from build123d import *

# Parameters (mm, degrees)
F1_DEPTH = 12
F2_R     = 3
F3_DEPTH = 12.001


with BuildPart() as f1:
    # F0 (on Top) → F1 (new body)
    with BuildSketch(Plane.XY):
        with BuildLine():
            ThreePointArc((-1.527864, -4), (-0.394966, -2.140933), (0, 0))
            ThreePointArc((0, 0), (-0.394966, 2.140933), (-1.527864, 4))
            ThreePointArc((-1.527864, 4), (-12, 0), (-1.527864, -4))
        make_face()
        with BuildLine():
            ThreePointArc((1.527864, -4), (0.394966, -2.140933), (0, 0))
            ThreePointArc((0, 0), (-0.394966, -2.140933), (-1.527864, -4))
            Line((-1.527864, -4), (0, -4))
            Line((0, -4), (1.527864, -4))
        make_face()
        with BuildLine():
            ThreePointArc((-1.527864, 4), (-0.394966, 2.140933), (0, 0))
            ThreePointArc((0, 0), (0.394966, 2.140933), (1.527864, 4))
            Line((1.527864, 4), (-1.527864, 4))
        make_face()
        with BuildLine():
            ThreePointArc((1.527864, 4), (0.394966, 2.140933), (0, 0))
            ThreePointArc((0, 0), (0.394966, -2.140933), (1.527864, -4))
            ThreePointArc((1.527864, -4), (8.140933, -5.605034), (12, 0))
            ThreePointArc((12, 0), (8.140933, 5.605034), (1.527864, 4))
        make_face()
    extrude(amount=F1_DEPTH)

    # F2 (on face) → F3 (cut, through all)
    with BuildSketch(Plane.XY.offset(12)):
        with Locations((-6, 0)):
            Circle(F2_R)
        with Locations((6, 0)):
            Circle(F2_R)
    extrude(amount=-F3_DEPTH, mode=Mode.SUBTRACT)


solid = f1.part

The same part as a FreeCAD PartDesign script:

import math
import FreeCAD as App
import Part
import Sketcher
Q = App.Units.Quantity

doc = App.newDocument("Part")
body = doc.addObject("PartDesign::Body", "Body")

# Sketch on XY plane
sketch1 = body.newObject("Sketcher::SketchObject", "Sketch")
sketch1.AttachmentSupport = (doc.getObject("XY_Plane"), [""])
sketch1.MapMode = "FlatFace"
sketch1.addGeometry(Part.ArcOfCircle(Part.Circle(App.Vector(-6, 0, 0), App.Vector(0, 0, 1), 6), math.radians(42), math.radians(318)), False)
sketch1.addGeometry(Part.LineSegment(App.Vector(-1.5, -4, 0), App.Vector(1.5, -4, 0)), False)
sketch1.addGeometry(Part.ArcOfCircle(Part.Circle(App.Vector(6, 0, 0), App.Vector(0, 0, 1), 6), math.radians(-138), math.radians(0)), False)
sketch1.addGeometry(Part.ArcOfCircle(Part.Circle(App.Vector(6, 0, 0), App.Vector(0, 0, 1), 6), math.radians(0), math.radians(138)), False)
sketch1.addGeometry(Part.LineSegment(App.Vector(1.5, 4, 0), App.Vector(-1.5, 4, 0)), False)
sketch1.addConstraint(Sketcher.Constraint("Coincident", 0, 2, 1, 1))
sketch1.addConstraint(Sketcher.Constraint("Coincident", 1, 2, 2, 1))
sketch1.addConstraint(Sketcher.Constraint("Tangent", 2, 2, 3, 1))
sketch1.addConstraint(Sketcher.Constraint("Coincident", 3, 2, 4, 1))
sketch1.addConstraint(Sketcher.Constraint("Coincident", 4, 2, 0, 1))
sketch1.addConstraint(Sketcher.Constraint("Horizontal", 1))
sketch1.addConstraint(Sketcher.Constraint("Horizontal", 4))
sketch1.addConstraint(Sketcher.Constraint("Equal", 0, 2))
sketch1.addConstraint(Sketcher.Constraint("Equal", 2, 3))
sketch1.addConstraint(Sketcher.Constraint("Symmetric", 0, 3, 2, 3, -1, 1))
sketch1.addConstraint(Sketcher.Constraint("Symmetric", 1, 2, 3, 2, -1))
sketch1.addConstraint(Sketcher.Constraint("PointOnObject", 2, 2, -1))
sketch1.addConstraint(Sketcher.Constraint("Radius", 0, Q("6 mm")))
sketch1.addConstraint(Sketcher.Constraint("DistanceX", 0, 3, -1, 1, Q("6 mm")))
sketch1.addConstraint(Sketcher.Constraint("DistanceY", 0, 2, -1, 1, Q("4 mm")))
pad1 = body.newObject("PartDesign::Pad", "Pad")
pad1.Profile = sketch1
pad1.Length = 12

# Sketch on XY plane
sketch2 = body.newObject("Sketcher::SketchObject", "Sketch001")
sketch2.AttachmentSupport = (doc.getObject("XY_Plane"), [""])
sketch2.MapMode = "FlatFace"
sketch2.AttachmentOffset = App.Placement(App.Vector(0, 0, 12), App.Rotation())
sketch2.addGeometry(Part.Circle(App.Vector(-6, 0, 0), App.Vector(0, 0, 1), 3), False)
sketch2.addGeometry(Part.Circle(App.Vector(6, 0, 0), App.Vector(0, 0, 1), 3), False)
sketch2.addConstraint(Sketcher.Constraint("Equal", 0, 1))
sketch2.addConstraint(Sketcher.Constraint("Symmetric", 0, 3, 1, 3, -1, 1))
sketch2.addConstraint(Sketcher.Constraint("PointOnObject", 0, 3, -1))
sketch2.addConstraint(Sketcher.Constraint("Diameter", 0, Q("6 mm")))
sketch2.addConstraint(Sketcher.Constraint("DistanceX", 0, 3, -1, 1, Q("6 mm")))
pocket1 = body.newObject("PartDesign::Pocket", "Pocket")
pocket1.Profile = sketch2
pocket1.Type = "ThroughAll"

doc.recompute()
